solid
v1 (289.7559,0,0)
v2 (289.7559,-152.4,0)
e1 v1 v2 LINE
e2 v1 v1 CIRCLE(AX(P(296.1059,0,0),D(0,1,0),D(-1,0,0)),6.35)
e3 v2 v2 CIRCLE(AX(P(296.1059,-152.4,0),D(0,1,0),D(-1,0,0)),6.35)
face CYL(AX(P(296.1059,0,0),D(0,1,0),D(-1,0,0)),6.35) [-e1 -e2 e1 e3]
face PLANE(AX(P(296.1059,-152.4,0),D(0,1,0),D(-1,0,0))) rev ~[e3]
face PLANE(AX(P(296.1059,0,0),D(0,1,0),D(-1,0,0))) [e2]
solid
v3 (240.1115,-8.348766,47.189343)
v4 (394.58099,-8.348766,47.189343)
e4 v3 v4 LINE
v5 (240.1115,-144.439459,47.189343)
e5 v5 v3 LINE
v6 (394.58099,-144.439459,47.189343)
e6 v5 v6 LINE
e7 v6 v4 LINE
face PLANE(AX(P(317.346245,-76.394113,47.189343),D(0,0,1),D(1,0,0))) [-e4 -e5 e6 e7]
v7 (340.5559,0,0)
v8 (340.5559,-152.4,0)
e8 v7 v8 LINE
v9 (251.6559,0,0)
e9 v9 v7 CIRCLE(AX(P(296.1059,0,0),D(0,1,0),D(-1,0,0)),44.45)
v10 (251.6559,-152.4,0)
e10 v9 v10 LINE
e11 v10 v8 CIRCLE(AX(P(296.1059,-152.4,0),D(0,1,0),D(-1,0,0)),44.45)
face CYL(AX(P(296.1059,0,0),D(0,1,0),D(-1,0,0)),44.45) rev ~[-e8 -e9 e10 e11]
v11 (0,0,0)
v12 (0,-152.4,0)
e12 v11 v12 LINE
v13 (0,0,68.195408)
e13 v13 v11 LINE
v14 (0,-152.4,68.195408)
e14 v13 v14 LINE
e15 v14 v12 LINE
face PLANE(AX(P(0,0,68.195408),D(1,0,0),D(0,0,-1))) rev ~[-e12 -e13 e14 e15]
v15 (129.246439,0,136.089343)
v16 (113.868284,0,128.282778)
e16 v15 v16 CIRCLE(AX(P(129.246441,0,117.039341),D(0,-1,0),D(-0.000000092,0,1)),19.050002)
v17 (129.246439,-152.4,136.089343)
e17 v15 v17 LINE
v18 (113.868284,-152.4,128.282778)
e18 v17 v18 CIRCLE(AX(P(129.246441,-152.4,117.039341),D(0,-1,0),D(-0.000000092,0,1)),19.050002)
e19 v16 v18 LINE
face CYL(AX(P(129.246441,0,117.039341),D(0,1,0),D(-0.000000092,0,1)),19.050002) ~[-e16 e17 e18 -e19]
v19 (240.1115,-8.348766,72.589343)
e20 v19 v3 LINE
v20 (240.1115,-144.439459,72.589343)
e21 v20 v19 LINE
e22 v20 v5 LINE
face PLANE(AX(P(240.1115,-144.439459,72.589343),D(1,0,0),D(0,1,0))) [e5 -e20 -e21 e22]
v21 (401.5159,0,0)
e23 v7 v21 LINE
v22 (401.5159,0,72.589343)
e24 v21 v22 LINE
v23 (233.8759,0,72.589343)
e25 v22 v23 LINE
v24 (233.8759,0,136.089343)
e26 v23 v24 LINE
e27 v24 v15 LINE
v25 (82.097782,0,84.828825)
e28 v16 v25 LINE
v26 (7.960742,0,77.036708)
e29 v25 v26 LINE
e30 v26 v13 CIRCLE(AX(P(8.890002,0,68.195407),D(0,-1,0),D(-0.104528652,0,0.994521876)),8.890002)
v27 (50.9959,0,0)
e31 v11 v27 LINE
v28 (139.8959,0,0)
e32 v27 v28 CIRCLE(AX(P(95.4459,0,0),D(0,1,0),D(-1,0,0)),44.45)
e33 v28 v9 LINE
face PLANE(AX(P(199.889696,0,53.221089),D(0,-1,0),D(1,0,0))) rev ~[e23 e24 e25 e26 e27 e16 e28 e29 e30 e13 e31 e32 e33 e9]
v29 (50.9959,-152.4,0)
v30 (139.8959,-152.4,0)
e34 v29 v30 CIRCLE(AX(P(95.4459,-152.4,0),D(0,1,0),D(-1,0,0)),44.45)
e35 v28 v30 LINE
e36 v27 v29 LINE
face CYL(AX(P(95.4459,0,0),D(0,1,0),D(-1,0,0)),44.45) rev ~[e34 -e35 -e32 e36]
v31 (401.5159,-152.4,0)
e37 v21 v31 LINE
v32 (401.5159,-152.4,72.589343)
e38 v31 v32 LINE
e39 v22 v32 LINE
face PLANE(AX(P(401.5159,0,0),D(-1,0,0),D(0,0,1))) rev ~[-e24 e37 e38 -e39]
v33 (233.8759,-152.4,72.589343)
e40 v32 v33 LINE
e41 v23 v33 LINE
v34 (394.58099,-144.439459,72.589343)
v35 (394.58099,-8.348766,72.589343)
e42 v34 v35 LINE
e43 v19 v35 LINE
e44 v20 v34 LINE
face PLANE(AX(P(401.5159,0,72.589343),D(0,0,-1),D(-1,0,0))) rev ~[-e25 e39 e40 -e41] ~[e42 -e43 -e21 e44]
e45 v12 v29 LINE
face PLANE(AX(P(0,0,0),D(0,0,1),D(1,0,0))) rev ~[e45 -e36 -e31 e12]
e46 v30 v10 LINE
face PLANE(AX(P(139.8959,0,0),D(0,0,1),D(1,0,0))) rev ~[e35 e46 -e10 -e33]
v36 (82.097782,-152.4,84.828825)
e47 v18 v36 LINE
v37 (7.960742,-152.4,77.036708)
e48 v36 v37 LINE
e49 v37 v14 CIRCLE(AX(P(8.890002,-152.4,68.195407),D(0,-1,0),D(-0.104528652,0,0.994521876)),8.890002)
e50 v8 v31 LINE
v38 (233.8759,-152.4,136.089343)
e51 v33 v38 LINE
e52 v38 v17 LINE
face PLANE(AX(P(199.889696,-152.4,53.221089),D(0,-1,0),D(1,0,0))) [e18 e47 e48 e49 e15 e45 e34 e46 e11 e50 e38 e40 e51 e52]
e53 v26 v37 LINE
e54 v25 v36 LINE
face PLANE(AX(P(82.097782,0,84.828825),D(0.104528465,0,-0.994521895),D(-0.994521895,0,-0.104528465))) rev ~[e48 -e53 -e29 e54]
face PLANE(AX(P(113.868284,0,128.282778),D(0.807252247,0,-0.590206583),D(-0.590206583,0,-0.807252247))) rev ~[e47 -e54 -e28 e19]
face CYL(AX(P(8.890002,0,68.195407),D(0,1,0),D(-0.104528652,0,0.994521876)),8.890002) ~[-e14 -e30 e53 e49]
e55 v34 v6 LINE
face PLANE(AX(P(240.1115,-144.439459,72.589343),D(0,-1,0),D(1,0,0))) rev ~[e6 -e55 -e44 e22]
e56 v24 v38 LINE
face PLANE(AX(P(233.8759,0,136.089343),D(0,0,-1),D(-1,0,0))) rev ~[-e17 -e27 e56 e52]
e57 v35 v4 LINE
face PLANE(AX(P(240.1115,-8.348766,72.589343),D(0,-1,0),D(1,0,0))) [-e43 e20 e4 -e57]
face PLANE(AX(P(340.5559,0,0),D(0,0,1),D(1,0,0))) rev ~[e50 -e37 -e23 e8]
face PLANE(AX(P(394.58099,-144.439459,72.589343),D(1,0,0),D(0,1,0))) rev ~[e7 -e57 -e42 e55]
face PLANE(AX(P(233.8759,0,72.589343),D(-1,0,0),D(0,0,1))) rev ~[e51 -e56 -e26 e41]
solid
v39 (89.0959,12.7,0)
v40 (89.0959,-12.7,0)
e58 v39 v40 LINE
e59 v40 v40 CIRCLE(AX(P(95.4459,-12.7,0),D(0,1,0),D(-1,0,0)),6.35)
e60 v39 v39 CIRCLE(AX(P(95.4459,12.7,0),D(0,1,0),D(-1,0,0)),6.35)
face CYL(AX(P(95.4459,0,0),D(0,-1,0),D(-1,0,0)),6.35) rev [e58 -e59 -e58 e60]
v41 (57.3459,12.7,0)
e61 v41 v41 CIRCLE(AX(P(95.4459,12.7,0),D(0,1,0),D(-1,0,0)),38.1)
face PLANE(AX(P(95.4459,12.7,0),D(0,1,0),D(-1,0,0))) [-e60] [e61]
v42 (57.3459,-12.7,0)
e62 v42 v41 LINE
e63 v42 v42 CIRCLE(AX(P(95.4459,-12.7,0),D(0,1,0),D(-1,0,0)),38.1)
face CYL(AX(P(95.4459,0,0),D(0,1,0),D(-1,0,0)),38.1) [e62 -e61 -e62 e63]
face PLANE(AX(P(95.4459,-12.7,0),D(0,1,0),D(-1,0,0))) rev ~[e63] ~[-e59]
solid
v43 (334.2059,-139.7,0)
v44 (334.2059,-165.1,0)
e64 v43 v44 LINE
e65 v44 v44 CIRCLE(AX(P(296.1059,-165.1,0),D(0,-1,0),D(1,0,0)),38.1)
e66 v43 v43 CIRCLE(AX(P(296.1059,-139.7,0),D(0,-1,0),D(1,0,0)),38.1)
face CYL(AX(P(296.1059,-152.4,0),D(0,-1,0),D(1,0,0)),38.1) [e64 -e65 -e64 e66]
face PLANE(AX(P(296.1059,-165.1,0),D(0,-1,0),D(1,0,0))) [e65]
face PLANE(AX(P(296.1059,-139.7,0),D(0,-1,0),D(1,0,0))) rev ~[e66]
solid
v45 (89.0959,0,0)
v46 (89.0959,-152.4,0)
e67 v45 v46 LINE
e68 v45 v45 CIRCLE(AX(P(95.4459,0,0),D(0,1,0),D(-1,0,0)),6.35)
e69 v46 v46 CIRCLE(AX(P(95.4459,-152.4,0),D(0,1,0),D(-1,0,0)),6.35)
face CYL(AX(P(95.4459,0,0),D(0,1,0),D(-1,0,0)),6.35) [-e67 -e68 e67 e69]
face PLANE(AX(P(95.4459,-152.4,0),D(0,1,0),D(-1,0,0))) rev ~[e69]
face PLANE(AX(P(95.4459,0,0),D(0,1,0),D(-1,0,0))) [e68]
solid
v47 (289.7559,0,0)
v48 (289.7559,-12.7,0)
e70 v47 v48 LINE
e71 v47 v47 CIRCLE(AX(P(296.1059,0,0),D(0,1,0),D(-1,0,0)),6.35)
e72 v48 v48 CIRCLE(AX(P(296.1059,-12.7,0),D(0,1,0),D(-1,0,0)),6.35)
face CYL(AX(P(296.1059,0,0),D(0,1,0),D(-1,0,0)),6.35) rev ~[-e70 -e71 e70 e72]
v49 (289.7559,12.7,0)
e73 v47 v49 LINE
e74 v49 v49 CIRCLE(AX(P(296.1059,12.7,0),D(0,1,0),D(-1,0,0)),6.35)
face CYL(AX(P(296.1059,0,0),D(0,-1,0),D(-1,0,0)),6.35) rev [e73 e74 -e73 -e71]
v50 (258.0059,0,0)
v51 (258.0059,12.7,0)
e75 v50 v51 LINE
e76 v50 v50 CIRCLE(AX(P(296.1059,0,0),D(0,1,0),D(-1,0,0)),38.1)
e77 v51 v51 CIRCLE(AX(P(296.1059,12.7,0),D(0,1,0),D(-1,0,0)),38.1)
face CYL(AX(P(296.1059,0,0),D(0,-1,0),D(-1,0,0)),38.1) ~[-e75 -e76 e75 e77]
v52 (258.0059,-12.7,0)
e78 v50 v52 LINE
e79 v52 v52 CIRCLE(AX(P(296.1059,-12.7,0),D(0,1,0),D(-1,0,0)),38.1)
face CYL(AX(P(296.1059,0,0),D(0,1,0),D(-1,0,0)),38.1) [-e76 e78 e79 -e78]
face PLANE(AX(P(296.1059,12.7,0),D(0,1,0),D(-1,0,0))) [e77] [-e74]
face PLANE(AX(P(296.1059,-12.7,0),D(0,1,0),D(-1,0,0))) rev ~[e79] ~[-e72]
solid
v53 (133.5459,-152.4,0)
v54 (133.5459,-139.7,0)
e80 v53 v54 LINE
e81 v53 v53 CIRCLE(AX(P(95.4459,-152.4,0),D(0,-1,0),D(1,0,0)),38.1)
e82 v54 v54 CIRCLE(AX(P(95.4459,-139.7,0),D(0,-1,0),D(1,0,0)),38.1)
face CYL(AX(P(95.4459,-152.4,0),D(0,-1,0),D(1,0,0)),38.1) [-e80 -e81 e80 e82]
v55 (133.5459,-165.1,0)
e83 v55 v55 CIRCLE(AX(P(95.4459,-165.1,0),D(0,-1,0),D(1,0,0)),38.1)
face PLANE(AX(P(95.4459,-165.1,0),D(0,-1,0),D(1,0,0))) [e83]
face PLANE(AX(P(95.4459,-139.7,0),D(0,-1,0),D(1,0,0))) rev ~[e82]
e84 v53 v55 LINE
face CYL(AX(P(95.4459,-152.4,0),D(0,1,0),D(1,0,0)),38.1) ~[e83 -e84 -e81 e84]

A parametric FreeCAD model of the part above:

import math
import FreeCAD as App
import Part
import Sketcher

V = App.Vector
Q = App.Units.Quantity

doc = App.newDocument("Part")
body = doc.addObject("PartDesign::Body", "Body")

sketch1 = body.newObject("Sketcher::SketchObject", "Sketch")
sketch1.AttachmentSupport = (doc.getObject("XZ_Plane"), [""])
sketch1.MapMode = "FlatFace"
sketch1.addGeometry([
    Part.LineSegment(V(0, 68.195408, 0), V(0, 0, 0)),
    Part.LineSegment(V(0, 0, 0), V(50.9959, 0, 0)),
    Part.ArcOfCircle(Part.Circle(V(95.4459, 0, 0), V(0, 0, 1), 44.45), math.radians(0), math.radians(180)),
    Part.LineSegment(V(139.8959, 0, 0), V(251.6559, 0, 0)),
    Part.ArcOfCircle(Part.Circle(V(296.1059, 0, 0), V(0, 0, 1), 44.45), math.radians(0), math.radians(180)),
    Part.LineSegment(V(340.5559, 0, 0), V(401.5159, 0, 0)),
    Part.LineSegment(V(401.5159, 0, 0), V(401.5159, 72.589343, 0)),
    Part.LineSegment(V(401.5159, 72.589343, 0), V(233.8759, 72.589343, 0)),
    Part.LineSegment(V(233.8759, 72.589343, 0), V(233.8759, 136.089343, 0)),
    Part.LineSegment(V(233.8759, 136.089343, 0), V(129.246439, 136.089343, 0)),
    Part.ArcOfCircle(Part.Circle(V(129.246441, 117.039341, 0), V(0, 0, 1), 19.050002), math.radians(90.000005), math.radians(143.828329)),
    Part.LineSegment(V(113.868284, 128.282778, 0), V(82.097782, 84.828825, 0)),
    Part.LineSegment(V(82.097782, 84.828825, 0), V(7.960742, 77.036708, 0)),
    Part.ArcOfCircle(Part.Circle(V(8.890002, 68.195407, 0), V(0, 0, 1), 8.890002), math.radians(96.000011), math.radians(179.999991)),
], False)
sketch1.addConstraint([
    Sketcher.Constraint("Coincident", 0, 2, 1, 1),
    Sketcher.Constraint("Coincident", 1, 2, 2, 2),
    Sketcher.Constraint("Coincident", 2, 1, 3, 1),
    Sketcher.Constraint("Coincident", 3, 2, 4, 2),
    Sketcher.Constraint("Coincident", 4, 1, 5, 1),
    Sketcher.Constraint("Coincident", 5, 2, 6, 1),
    Sketcher.Constraint("Coincident", 6, 2, 7, 1),
    Sketcher.Constraint("Coincident", 7, 2, 8, 1),
    Sketcher.Constraint("Coincident", 8, 2, 9, 1),
    Sketcher.Constraint("Tangent", 9, 2, 10, 1),
    Sketcher.Constraint("Tangent", 10, 2, 11, 1),
    Sketcher.Constraint("Coincident", 11, 2, 12, 1),
    Sketcher.Constraint("Tangent", 12, 2, 13, 1),
    Sketcher.Constraint("Tangent", 13, 2, 0, 1),
    Sketcher.Constraint("Vertical", 0),
    Sketcher.Constraint("Horizontal", 1),
    Sketcher.Constraint("Horizontal", 3),
    Sketcher.Constraint("Horizontal", 5),
    Sketcher.Constraint("Vertical", 6),
    Sketcher.Constraint("Horizontal", 7),
    Sketcher.Constraint("Vertical", 8),
    Sketcher.Constraint("Horizontal", 9),
    Sketcher.Constraint("Coincident", 0, 2, -1, 1),
    Sketcher.Constraint("Equal", 2, 4),
    Sketcher.Constraint("PointOnObject", 2, 3, -1),
    Sketcher.Constraint("PointOnObject", 4, 3, -1),
    Sketcher.Constraint("PointOnObject", 2, 1, -1),
    Sketcher.Constraint("PointOnObject", 4, 1, -1),
    Sketcher.Constraint("Radius", 2, Q("1.75 in")),
    Sketcher.Constraint("Radius", 10, Q("0.7500001 in")),
    Sketcher.Constraint("Radius", 13, Q("0.3500001 in")),
    Sketcher.Constraint("DistanceX", 3, 1, 3, 2, Q("4.4 in")),
    Sketcher.Constraint("DistanceX", 5, 1, 5, 2, Q("2.4 in")),
    Sketcher.Constraint("DistanceX", 7, 2, 7, 1, Q("6.6 in")),
    Sketcher.Constraint("DistanceY", 8, 1, 8, 2, Q("2.5 in")),
    Sketcher.Constraint("Angle", 12, Q("-174 deg")),
    Sketcher.Constraint("DistanceX", 1, 1, 1, 2, Q("50.9959 mm")),
    Sketcher.Constraint("DistanceX", 9, 2, 9, 1, Q("104.629461 mm")),
    Sketcher.Constraint("DistanceY", 0, 2, 0, 1, Q("68.195408 mm")),
    Sketcher.Constraint("DistanceX", 11, 2, 10, 2, Q("31.770502 mm")),
    Sketcher.Constraint("Distance", 11, Q("53.829461 mm")),
])
pad1 = body.newObject("PartDesign::Pad", "Pad")
pad1.Profile = sketch1
pad1.Length = Q("6 in")

sketch2 = body.newObject("Sketcher::SketchObject", "Sketch001")
sketch2.AttachmentSupport = (doc.getObject("XY_Plane"), [""])
sketch2.MapMode = "FlatFace"
sketch2.AttachmentOffset = App.Placement(V(0, 0, 72.589343), App.Rotation())
sketch2.addGeometry([
    Part.LineSegment(V(240.1115, -8.348766, 0), V(240.1115, -144.439459, 0)),
    Part.LineSegment(V(240.1115, -144.439459, 0), V(394.58099, -144.439459, 0)),
    Part.LineSegment(V(394.58099, -144.439459, 0), V(394.58099, -8.348766, 0)),
    Part.LineSegment(V(394.58099, -8.348766, 0), V(240.1115, -8.348766, 0)),
], False)
sketch2.addConstraint([
    Sketcher.Constraint("Coincident", 0, 2, 1, 1),
    Sketcher.Constraint("Coincident", 1, 2, 2, 1),
    Sketcher.Constraint("Coincident", 2, 2, 3, 1),
    Sketcher.Constraint("Coincident", 3, 2, 0, 1),
    Sketcher.Constraint("Vertical", 0),
    Sketcher.Constraint("Horizontal", 1),
    Sketcher.Constraint("Vertical", 2),
    Sketcher.Constraint("Horizontal", 3),
    Sketcher.Constraint("DistanceX", 1, 1, 1, 2, Q("154.46949 mm")),
    Sketcher.Constraint("DistanceX", -1, 1, 0, 2, Q("240.1115 mm")),
    Sketcher.Constraint("DistanceY", 0, 2, 0, 1, Q("136.090693 mm")),
    Sketcher.Constraint("DistanceY", 0, 2, -1, 1, Q("144.439459 mm")),
])
pocket1 = body.newObject("PartDesign::Pocket", "Pocket")
pocket1.Profile = sketch2
pocket1.Length = Q("1 in")
body2 = doc.addObject("PartDesign::Body", "Body001")
body2.AllowCompound = True

sketch3 = body2.newObject("Sketcher::SketchObject", "Sketch002")
sketch3.AttachmentSupport = (doc.getObject("XZ_Plane001"), [""])
sketch3.MapMode = "FlatFace"
sketch3.AttachmentOffset = App.Placement(V(0, 0, 6 * 25.4), App.Rotation())
sketch3.addGeometry([
    Part.Circle(V(95.4459, 0, 0), V(0, 0, 1), 38.1),
    Part.Circle(V(296.1059, 0, 0), V(0, 0, 1), 38.1),
], False)
sketch3.addConstraint([
    Sketcher.Constraint("Equal", 0, 1),
    Sketcher.Constraint("PointOnObject", 0, 3, -1),
    Sketcher.Constraint("PointOnObject", 1, 3, -1),
    Sketcher.Constraint("Diameter", 0, Q("3 in")),
    Sketcher.Constraint("DistanceX", 0, 3, 1, 3, Q("7.9 in")),
    Sketcher.Constraint("DistanceX", -1, 1, 0, 3, Q("95.4459 mm")),
])
pad2 = body2.newObject("PartDesign::Pad", "Pad001")
pad2.Profile = sketch3
pad2.Length = Q("1 in")
pad2.Midplane = True
body3 = doc.addObject("PartDesign::Body", "Body002")
body3.AllowCompound = True

sketch4 = body3.newObject("Sketcher::SketchObject", "Sketch003")
sketch4.AttachmentSupport = (doc.getObject("XZ_Plane002"), [""])
sketch4.MapMode = "FlatFace"
sketch4.addGeometry([
    Part.Circle(V(296.1059, 0, 0), V(0, 0, 1), 6.35),
    Part.Circle(V(95.4459, 0, 0), V(0, 0, 1), 6.35),
], False)
sketch4.addConstraint([
    Sketcher.Constraint("Equal", 0, 1),
    Sketcher.Constraint("PointOnObject", 0, 3, -1),
    Sketcher.Constraint("PointOnObject", 1, 3, -1),
    Sketcher.Constraint("Diameter", 0, Q("0.5 in")),
    Sketcher.Constraint("DistanceX", 1, 3, 0, 3, Q("7.9 in")),
    Sketcher.Constraint("DistanceX", -1, 1, 0, 3, Q("296.1059 mm")),
])
pad3 = body3.newObject("PartDesign::Pad", "Pad002")
pad3.Profile = sketch4
pad3.Length = Q("6 in")
body4 = doc.addObject("PartDesign::Body", "Body003")
body4.AllowCompound = True

sketch5 = body4.newObject("Sketcher::SketchObject", "Sketch004")
sketch5.AttachmentSupport = (doc.getObject("XZ_Plane003"), [""])
sketch5.MapMode = "FlatFace"
sketch5.addGeometry([
    Part.Circle(V(296.1059, 0, 0), V(0, 0, 1), 38.1),
    Part.Circle(V(296.1059, 0, 0), V(0, 0, 1), 6.35),
    Part.Circle(V(95.4459, 0, 0), V(0, 0, 1), 38.1),
    Part.Circle(V(95.4459, 0, 0), V(0, 0, 1), 6.35),
], False)
sketch5.addConstraint([
    Sketcher.Constraint("Coincident", 1, 3, 0, 3),
    Sketcher.Constraint("Coincident", 3, 3, 2, 3),
    Sketcher.Constraint("Equal", 0, 2),
    Sketcher.Constraint("Equal", 1, 3),
    Sketcher.Constraint("PointOnObject", 0, 3, -1),
    Sketcher.Constraint("PointOnObject", 2, 3, -1),
    Sketcher.Constraint("Diameter", 0, Q("3 in")),
    Sketcher.Constraint("Diameter", 1, Q("0.5 in")),
    Sketcher.Constraint("DistanceX", 2, 3, 0, 3, Q("7.9 in")),
    Sketcher.Constraint("DistanceX", -1, 1, 0, 3, Q("296.1059 mm")),
])
pad4 = body4.newObject("PartDesign::Pad", "Pad003")
pad4.Profile = sketch5
pad4.Length = Q("1 in")
pad4.Midplane = True

doc.recompute()
